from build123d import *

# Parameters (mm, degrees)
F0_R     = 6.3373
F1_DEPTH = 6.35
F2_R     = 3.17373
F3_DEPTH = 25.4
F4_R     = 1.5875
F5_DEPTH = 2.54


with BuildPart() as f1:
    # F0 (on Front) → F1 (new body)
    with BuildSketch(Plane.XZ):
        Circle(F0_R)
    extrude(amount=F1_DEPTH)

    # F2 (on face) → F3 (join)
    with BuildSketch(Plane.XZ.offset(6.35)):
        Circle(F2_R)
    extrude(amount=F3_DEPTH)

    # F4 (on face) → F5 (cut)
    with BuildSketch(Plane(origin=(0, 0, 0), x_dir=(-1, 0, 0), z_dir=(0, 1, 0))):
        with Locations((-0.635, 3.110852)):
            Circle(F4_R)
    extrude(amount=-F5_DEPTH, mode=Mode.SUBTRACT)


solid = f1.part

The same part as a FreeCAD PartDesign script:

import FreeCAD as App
import Part
import Sketcher
Q = App.Units.Quantity

doc = App.newDocument("Part")
body = doc.addObject("PartDesign::Body", "Body")

sketch1 = body.newObject("Sketcher::SketchObject", "Sketch")
sketch1.AttachmentSupport = (doc.getObject("XZ_Plane"), [""])
sketch1.MapMode = "FlatFace"
sketch1.addGeometry(Part.Circle(App.Vector(0, 0, 0), App.Vector(0, 0, 1), 6), False)
sketch1.addConstraint(Sketcher.Constraint("Coincident", 0, 3, -1, 1))
sketch1.addConstraint(Sketcher.Constraint("Diameter", 0, Q("0.499 in")))
pad1 = body.newObject("PartDesign::Pad", "Pad")
pad1.Profile = sketch1
pad1.Length = Q("0.25 in")

sketch2 = body.newObject("Sketcher::SketchObject", "Sketch001")
sketch2.AttachmentSupport = (doc.getObject("XZ_Plane"), [""])
sketch2.MapMode = "FlatFace"
sketch2.AttachmentOffset = App.Placement(App.Vector(0, 0, 0.25 * 25.4), App.Rotation())
sketch2.addGeometry(Part.Circle(App.Vector(0, 0, 0), App.Vector(0, 0, 1), 3.2), False)
sketch2.addConstraint(Sketcher.Constraint("Coincident", 0, 3, -1, 1))
sketch2.addConstraint(Sketcher.Constraint("Diameter", 0, Q("0.2499 in")))
pad2 = body.newObject("PartDesign::Pad", "Pad001")
pad2.Profile = sketch2
pad2.Length = Q("1 in")

sketch3 = body.newObject("Sketcher::SketchObject", "Sketch002")
sketch3.AttachmentSupport = (doc.getObject("XZ_Plane"), [""])
sketch3.MapMode = "FlatFace"
sketch3.addGeometry(Part.Circle(App.Vector(0.6, 3.1, 0), App.Vector(0, 0, 1), 1.6), False)
sketch3.addConstraint(Sketcher.Constraint("Diameter", 0, Q("0.125 in")))
sketch3.addConstraint(Sketcher.Constraint("DistanceX", -1, 1, 0, 3, Q("0.025 in")))
sketch3.addConstraint(Sketcher.Constraint("DistanceY", -1, 1, 0, 3, Q("3.110852 mm")))
pocket1 = body.newObject("PartDesign::Pocket", "Pocket")
pocket1.Profile = sketch3
pocket1.Length = Q("0.1 in")
pocket1.Reversed = True

doc.recompute()
